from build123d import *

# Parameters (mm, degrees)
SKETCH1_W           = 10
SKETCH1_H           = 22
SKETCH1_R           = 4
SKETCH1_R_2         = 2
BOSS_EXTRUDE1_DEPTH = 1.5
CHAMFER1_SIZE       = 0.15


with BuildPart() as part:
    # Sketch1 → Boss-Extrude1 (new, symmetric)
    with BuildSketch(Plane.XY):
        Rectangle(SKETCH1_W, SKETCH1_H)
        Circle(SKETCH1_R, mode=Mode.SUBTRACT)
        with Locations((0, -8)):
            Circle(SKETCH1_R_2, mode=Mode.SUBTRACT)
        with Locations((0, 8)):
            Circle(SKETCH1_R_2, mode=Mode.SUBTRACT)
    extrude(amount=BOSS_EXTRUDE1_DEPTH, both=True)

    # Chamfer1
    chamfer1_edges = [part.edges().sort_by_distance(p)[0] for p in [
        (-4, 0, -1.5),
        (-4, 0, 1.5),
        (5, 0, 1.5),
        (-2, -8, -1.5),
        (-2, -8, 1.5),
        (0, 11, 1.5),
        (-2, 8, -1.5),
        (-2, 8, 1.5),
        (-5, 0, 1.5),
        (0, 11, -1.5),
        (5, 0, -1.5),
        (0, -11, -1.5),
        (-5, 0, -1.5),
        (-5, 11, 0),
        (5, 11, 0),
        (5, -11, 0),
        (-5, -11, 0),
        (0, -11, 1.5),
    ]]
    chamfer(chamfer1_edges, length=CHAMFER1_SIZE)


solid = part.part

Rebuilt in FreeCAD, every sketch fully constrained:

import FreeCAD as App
import Part
import Sketcher

V = App.Vector
Q = App.Units.Quantity

doc = App.newDocument("Part")
body = doc.addObject("PartDesign::Body", "Body")

sketch1 = body.newObject("Sketcher::SketchObject", "Sketch")
sketch1.AttachmentSupport = (doc.getObject("XY_Plane"), [""])
sketch1.MapMode = "FlatFace"
sketch1.addGeometry([
    Part.LineSegment(V(-5, 11, 0), V(-5, -11, 0)),
    Part.LineSegment(V(-5, -11, 0), V(5, -11, 0)),
    Part.LineSegment(V(5, -11, 0), V(5, 11, 0)),
    Part.LineSegment(V(5, 11, 0), V(-5, 11, 0)),
    Part.Circle(V(0, -8, 0), V(0, 0, 1), 2),
    Part.Circle(V(0, 0, 0), V(0, 0, 1), 4),
    Part.Circle(V(0, 8, 0), V(0, 0, 1), 2),
], False)
sketch1.addConstraint([
    Sketcher.Constraint("Coincident", 0, 2, 1, 1),
    Sketcher.Constraint("Coincident", 1, 2, 2, 1),
    Sketcher.Constraint("Coincident", 2, 2, 3, 1),
    Sketcher.Constraint("Coincident", 3, 2, 0, 1),
    Sketcher.Constraint("Vertical", 0),
    Sketcher.Constraint("Horizontal", 1),
    Sketcher.Constraint("Vertical", 2),
    Sketcher.Constraint("Horizontal", 3),
    Sketcher.Constraint("Coincident", 5, 3, -1, 1),
    Sketcher.Constraint("Equal", 4, 6),
    Sketcher.Constraint("Symmetric", 4, 3, 6, 3, -1, 1),
    Sketcher.Constraint("Symmetric", 0, 2, 2, 2, -1, 1),
    Sketcher.Constraint("PointOnObject", 4, 3, -2),
    Sketcher.Constraint("Diameter", 4, Q("4 mm")),
    Sketcher.Constraint("Diameter", 5, Q("8 mm")),
    Sketcher.Constraint("DistanceX", 1, 1, 1, 2, Q("10 mm")),
    Sketcher.Constraint("DistanceY", 0, 2, 0, 1, Q("22 mm")),
    Sketcher.Constraint("DistanceY", 4, 3, -1, 1, Q("8 mm")),
])
pad1 = body.newObject("PartDesign::Pad", "Pad")
pad1.Profile = sketch1
pad1.Length = 3
pad1.Midplane = True
doc.recompute()

chamfer = body.newObject("PartDesign::Chamfer", "Chamfer")
chamfer.Base = (pad1, ["Edge1"])
chamfer.UseAllEdges = True
chamfer.Size = 0.15

doc.recompute()
